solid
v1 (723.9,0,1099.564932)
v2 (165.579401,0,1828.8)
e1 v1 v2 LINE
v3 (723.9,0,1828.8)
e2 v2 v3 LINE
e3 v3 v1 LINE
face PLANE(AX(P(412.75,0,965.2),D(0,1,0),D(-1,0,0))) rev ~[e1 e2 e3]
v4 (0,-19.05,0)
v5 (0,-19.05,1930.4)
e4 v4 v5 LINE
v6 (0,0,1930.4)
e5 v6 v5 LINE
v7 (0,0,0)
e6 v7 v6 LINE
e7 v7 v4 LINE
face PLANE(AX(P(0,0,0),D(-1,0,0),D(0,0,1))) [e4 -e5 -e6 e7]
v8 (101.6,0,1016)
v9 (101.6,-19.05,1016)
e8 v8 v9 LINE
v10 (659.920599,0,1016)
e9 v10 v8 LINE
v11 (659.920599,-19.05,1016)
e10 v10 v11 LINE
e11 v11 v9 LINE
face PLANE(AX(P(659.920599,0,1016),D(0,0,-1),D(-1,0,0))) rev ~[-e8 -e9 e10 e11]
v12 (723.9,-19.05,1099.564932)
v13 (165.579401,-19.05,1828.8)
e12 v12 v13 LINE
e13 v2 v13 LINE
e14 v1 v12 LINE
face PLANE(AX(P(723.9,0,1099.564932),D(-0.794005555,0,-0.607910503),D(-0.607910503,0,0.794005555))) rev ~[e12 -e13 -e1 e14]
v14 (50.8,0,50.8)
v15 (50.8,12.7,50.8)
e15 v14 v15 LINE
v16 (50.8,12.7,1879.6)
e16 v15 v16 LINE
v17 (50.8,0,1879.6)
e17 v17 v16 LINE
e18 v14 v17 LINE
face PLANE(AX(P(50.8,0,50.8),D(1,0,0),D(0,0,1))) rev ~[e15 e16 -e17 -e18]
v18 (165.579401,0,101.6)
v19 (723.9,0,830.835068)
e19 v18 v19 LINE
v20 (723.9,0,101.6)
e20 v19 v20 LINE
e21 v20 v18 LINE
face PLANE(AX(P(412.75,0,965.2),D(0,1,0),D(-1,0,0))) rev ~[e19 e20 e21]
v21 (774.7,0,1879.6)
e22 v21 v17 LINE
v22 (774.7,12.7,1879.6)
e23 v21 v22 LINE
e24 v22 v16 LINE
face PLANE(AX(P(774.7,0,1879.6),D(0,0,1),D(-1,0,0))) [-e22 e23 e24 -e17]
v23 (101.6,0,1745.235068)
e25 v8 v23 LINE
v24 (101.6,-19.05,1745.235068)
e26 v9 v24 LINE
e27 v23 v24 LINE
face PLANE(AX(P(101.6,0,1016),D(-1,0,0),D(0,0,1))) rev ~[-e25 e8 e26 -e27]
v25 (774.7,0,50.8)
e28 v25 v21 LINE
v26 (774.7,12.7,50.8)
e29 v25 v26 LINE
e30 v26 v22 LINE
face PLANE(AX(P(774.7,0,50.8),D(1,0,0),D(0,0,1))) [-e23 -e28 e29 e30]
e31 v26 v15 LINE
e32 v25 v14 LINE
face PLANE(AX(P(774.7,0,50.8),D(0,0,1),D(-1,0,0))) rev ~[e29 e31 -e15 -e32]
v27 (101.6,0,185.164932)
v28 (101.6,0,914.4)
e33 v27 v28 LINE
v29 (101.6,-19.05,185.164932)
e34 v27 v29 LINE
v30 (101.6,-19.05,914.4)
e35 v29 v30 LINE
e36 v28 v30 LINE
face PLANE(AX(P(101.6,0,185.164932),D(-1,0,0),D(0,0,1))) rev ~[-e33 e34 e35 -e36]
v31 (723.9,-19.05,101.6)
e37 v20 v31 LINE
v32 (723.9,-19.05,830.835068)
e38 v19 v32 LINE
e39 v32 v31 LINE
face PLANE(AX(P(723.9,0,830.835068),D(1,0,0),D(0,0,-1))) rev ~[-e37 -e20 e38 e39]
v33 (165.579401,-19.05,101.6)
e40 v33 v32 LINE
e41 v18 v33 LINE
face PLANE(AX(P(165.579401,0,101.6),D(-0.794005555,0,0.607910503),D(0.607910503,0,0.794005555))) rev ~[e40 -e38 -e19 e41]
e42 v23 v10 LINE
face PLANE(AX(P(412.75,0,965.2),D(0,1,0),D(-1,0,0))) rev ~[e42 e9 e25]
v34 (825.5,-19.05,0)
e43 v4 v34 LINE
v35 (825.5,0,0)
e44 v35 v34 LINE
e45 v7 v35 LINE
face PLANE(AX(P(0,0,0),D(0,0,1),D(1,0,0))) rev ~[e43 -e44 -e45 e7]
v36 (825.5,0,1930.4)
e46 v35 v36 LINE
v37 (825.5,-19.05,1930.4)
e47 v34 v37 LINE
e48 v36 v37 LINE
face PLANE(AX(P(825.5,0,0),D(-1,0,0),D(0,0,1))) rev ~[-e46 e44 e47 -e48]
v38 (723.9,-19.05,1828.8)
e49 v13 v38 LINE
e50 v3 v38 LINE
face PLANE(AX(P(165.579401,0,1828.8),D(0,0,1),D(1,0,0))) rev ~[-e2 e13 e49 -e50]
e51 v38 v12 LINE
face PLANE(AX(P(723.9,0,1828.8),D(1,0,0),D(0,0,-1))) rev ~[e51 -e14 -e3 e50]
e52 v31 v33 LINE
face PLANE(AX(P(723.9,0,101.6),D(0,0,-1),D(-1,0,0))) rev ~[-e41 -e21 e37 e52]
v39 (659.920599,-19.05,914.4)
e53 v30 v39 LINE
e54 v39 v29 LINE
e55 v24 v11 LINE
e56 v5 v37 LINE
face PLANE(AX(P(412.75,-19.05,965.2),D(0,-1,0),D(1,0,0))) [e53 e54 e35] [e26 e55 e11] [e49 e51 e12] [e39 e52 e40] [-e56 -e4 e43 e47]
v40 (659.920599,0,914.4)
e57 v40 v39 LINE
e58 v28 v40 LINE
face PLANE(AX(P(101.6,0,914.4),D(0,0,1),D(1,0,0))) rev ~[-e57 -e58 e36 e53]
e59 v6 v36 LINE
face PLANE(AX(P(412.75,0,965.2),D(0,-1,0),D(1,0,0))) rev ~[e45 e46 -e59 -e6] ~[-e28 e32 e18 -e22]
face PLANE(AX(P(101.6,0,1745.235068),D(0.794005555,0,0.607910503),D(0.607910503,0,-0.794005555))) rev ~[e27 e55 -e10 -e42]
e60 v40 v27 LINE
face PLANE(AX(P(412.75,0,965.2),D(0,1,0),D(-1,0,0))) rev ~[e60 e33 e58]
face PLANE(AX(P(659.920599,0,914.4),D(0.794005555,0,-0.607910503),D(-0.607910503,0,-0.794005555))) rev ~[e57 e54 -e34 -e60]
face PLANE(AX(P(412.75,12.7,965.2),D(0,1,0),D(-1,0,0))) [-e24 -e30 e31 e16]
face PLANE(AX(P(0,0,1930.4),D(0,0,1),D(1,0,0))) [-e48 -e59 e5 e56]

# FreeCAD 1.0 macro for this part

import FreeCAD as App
import Part
import Sketcher
from FreeCAD import Vector
Q = App.Units.Quantity

doc = App.newDocument("Part")
body = doc.addObject("PartDesign::Body", "Body")

sketch1 = doc.addObject("Sketcher::SketchObject", "Sketch")
body.addObject(sketch1)
sketch1.AttachmentSupport = (doc.XZ_Plane, [""])
sketch1.MapMode = "FlatFace"
sketch1.addGeometry(Part.LineSegment(Vector(0, 1930.4, 0), Vector(0, 0, 0)), False)
sketch1.addGeometry(Part.LineSegment(Vector(0, 0, 0), Vector(825.5, 0, 0)), False)
sketch1.addGeometry(Part.LineSegment(Vector(825.5, 0, 0), Vector(825.5, 1930.4, 0)), False)
sketch1.addGeometry(Part.LineSegment(Vector(825.5, 1930.4, 0), Vector(0, 1930.4, 0)), False)
sketch1.addGeometry(Part.LineSegment(Vector(723.9, 830.835068, 0), Vector(723.9, 101.6, 0)), False)
sketch1.addGeometry(Part.LineSegment(Vector(723.9, 101.6, 0), Vector(165.579401, 101.6, 0)), False)
sketch1.addGeometry(Part.LineSegment(Vector(165.579401, 101.6, 0), Vector(723.9, 830.835068, 0)), False)
sketch1.addGeometry(Part.LineSegment(Vector(101.6, 185.164932, 0), Vector(101.6, 914.4, 0)), False)
sketch1.addGeometry(Part.LineSegment(Vector(101.6, 914.4, 0), Vector(659.920599, 914.4, 0)), False)
sketch1.addGeometry(Part.LineSegment(Vector(659.920599, 914.4, 0), Vector(101.6, 185.164932, 0)), False)
sketch1.addGeometry(Part.LineSegment(Vector(101.6, 1016, 0), Vector(101.6, 1745.235068, 0)), False)
sketch1.addGeometry(Part.LineSegment(Vector(101.6, 1745.235068, 0), Vector(659.920599, 1016, 0)), False)
sketch1.addGeometry(Part.LineSegment(Vector(659.920599, 1016, 0), Vector(101.6, 1016, 0)), False)
sketch1.addGeometry(Part.LineSegment(Vector(723.9, 1828.8, 0), Vector(723.9, 1099.564932, 0)), False)
sketch1.addGeometry(Part.LineSegment(Vector(723.9, 1099.564932, 0), Vector(165.579401, 1828.8, 0)), False)
sketch1.addGeometry(Part.LineSegment(Vector(165.579401, 1828.8, 0), Vector(723.9, 1828.8, 0)), False)
sketch1.addConstraint(Sketcher.Constraint("Coincident", 0, 2, 1, 1))
sketch1.addConstraint(Sketcher.Constraint("Coincident", 1, 2, 2, 1))
sketch1.addConstraint(Sketcher.Constraint("Coincident", 2, 2, 3, 1))
sketch1.addConstraint(Sketcher.Constraint("Coincident", 3, 2, 0, 1))
sketch1.addConstraint(Sketcher.Constraint("Coincident", 4, 2, 5, 1))
sketch1.addConstraint(Sketcher.Constraint("Coincident", 5, 2, 6, 1))
sketch1.addConstraint(Sketcher.Constraint("Coincident", 6, 2, 4, 1))
sketch1.addConstraint(Sketcher.Constraint("Coincident", 7, 2, 8, 1))
sketch1.addConstraint(Sketcher.Constraint("Coincident", 8, 2, 9, 1))
sketch1.addConstraint(Sketcher.Constraint("Coincident", 9, 2, 7, 1))
sketch1.addConstraint(Sketcher.Constraint("Coincident", 10, 2, 11, 1))
sketch1.addConstraint(Sketcher.Constraint("Coincident", 11, 2, 12, 1))
sketch1.addConstraint(Sketcher.Constraint("Coincident", 12, 2, 10, 1))
sketch1.addConstraint(Sketcher.Constraint("Coincident", 13, 2, 14, 1))
sketch1.addConstraint(Sketcher.Constraint("Coincident", 14, 2, 15, 1))
sketch1.addConstraint(Sketcher.Constraint("Coincident", 15, 2, 13, 1))
sketch1.addConstraint(Sketcher.Constraint("Vertical", 0))
sketch1.addConstraint(Sketcher.Constraint("Horizontal", 1))
sketch1.addConstraint(Sketcher.Constraint("Vertical", 2))
sketch1.addConstraint(Sketcher.Constraint("Horizontal", 3))
sketch1.addConstraint(Sketcher.Constraint("Vertical", 4))
sketch1.addConstraint(Sketcher.Constraint("Horizontal", 5))
sketch1.addConstraint(Sketcher.Constraint("Vertical", 7))
sketch1.addConstraint(Sketcher.Constraint("Horizontal", 8))
sketch1.addConstraint(Sketcher.Constraint("Vertical", 10))
sketch1.addConstraint(Sketcher.Constraint("Horizontal", 12))
sketch1.addConstraint(Sketcher.Constraint("Vertical", 13))
sketch1.addConstraint(Sketcher.Constraint("Horizontal", 15))
sketch1.addConstraint(Sketcher.Constraint("Coincident", 0, 2, -1, 1))
sketch1.addConstraint(Sketcher.Constraint("Parallel", 6, 9))
sketch1.addConstraint(Sketcher.Constraint("Parallel", 11, 14))
sketch1.addConstraint(Sketcher.Constraint("Vertical", 9, 2, 10, 2))
sketch1.addConstraint(Sketcher.Constraint("Vertical", 8, 2, 11, 2))
sketch1.addConstraint(Sketcher.Constraint("Vertical", 6, 2, 13, 2))
sketch1.addConstraint(Sketcher.Constraint("Vertical", 5, 2, 14, 2))
sketch1.addConstraint(Sketcher.Constraint("Equal", 5, 8))
sketch1.addConstraint(Sketcher.Constraint("Equal", 7, 10))
sketch1.addConstraint(Sketcher.Constraint("DistanceY", 0, 2, 0, 1, Q("76 in")))
sketch1.addConstraint(Sketcher.Constraint("DistanceX", 1, 1, 1, 2, Q("32.5 in")))
sketch1.addConstraint(Sketcher.Constraint("DistanceY", -1, 1, 4, 2, Q("4 in")))
sketch1.addConstraint(Sketcher.Constraint("DistanceX", -1, 1, 7, 2, Q("4 in")))
sketch1.addConstraint(Sketcher.Constraint("DistanceY", -1, 1, 7, 2, Q("36 in")))
sketch1.addConstraint(Sketcher.Constraint("DistanceY", -1, 1, 11, 2, Q("40 in")))
sketch1.addConstraint(Sketcher.Constraint("DistanceY", -1, 1, 14, 2, Q("72 in")))
sketch1.addConstraint(Sketcher.Constraint("DistanceX", 4, 2, 1, 2, Q("4 in")))
sketch1.addConstraint(Sketcher.Constraint("DistanceX", 5, 2, 5, 1, 558.320599))
sketch1.addConstraint(Sketcher.Constraint("DistanceY", 4, 2, 4, 1, 729.235068))
pad1 = doc.addObject("PartDesign::Pad", "Pad")
body.addObject(pad1)
pad1.Profile = sketch1
pad1.Length = Q("0.75 in")

sketch2 = doc.addObject("Sketcher::SketchObject", "Sketch001")
body.addObject(sketch2)
sketch2.AttachmentSupport = (doc.XZ_Plane, [""])
sketch2.MapMode = "FlatFace"
sketch2.addGeometry(Part.LineSegment(Vector(774.7, 1879.6, 0), Vector(774.7, 50.8, 0)), False)
sketch2.addGeometry(Part.LineSegment(Vector(774.7, 50.8, 0), Vector(50.8, 50.8, 0)), False)
sketch2.addGeometry(Part.LineSegment(Vector(50.8, 50.8, 0), Vector(50.8, 1879.6, 0)), False)
sketch2.addGeometry(Part.LineSegment(Vector(50.8, 1879.6, 0), Vector(774.7, 1879.6, 0)), False)
sketch2.addConstraint(Sketcher.Constraint("Coincident", 0, 2, 1, 1))
sketch2.addConstraint(Sketcher.Constraint("Coincident", 1, 2, 2, 1))
sketch2.addConstraint(Sketcher.Constraint("Coincident", 2, 2, 3, 1))
sketch2.addConstraint(Sketcher.Constraint("Coincident", 3, 2, 0, 1))
sketch2.addConstraint(Sketcher.Constraint("Vertical", 0))
sketch2.addConstraint(Sketcher.Constraint("Horizontal", 1))
sketch2.addConstraint(Sketcher.Constraint("Vertical", 2))
sketch2.addConstraint(Sketcher.Constraint("Horizontal", 3))
sketch2.addConstraint(Sketcher.Constraint("DistanceY", 0, 2, 0, 1, Q("72 in")))
sketch2.addConstraint(Sketcher.Constraint("DistanceX", 1, 2, 1, 1, Q("28.5 in")))
sketch2.addConstraint(Sketcher.Constraint("DistanceY", -1, 1, 0, 2, Q("2 in")))
sketch2.addConstraint(Sketcher.Constraint("DistanceX", -1, 1, 1, 2, Q("2 in")))
pad2 = doc.addObject("PartDesign::Pad", "Pad001")
body.addObject(pad2)
pad2.Profile = sketch2
pad2.Length = Q("0.5 in")
pad2.Reversed = True

doc.recompute()
